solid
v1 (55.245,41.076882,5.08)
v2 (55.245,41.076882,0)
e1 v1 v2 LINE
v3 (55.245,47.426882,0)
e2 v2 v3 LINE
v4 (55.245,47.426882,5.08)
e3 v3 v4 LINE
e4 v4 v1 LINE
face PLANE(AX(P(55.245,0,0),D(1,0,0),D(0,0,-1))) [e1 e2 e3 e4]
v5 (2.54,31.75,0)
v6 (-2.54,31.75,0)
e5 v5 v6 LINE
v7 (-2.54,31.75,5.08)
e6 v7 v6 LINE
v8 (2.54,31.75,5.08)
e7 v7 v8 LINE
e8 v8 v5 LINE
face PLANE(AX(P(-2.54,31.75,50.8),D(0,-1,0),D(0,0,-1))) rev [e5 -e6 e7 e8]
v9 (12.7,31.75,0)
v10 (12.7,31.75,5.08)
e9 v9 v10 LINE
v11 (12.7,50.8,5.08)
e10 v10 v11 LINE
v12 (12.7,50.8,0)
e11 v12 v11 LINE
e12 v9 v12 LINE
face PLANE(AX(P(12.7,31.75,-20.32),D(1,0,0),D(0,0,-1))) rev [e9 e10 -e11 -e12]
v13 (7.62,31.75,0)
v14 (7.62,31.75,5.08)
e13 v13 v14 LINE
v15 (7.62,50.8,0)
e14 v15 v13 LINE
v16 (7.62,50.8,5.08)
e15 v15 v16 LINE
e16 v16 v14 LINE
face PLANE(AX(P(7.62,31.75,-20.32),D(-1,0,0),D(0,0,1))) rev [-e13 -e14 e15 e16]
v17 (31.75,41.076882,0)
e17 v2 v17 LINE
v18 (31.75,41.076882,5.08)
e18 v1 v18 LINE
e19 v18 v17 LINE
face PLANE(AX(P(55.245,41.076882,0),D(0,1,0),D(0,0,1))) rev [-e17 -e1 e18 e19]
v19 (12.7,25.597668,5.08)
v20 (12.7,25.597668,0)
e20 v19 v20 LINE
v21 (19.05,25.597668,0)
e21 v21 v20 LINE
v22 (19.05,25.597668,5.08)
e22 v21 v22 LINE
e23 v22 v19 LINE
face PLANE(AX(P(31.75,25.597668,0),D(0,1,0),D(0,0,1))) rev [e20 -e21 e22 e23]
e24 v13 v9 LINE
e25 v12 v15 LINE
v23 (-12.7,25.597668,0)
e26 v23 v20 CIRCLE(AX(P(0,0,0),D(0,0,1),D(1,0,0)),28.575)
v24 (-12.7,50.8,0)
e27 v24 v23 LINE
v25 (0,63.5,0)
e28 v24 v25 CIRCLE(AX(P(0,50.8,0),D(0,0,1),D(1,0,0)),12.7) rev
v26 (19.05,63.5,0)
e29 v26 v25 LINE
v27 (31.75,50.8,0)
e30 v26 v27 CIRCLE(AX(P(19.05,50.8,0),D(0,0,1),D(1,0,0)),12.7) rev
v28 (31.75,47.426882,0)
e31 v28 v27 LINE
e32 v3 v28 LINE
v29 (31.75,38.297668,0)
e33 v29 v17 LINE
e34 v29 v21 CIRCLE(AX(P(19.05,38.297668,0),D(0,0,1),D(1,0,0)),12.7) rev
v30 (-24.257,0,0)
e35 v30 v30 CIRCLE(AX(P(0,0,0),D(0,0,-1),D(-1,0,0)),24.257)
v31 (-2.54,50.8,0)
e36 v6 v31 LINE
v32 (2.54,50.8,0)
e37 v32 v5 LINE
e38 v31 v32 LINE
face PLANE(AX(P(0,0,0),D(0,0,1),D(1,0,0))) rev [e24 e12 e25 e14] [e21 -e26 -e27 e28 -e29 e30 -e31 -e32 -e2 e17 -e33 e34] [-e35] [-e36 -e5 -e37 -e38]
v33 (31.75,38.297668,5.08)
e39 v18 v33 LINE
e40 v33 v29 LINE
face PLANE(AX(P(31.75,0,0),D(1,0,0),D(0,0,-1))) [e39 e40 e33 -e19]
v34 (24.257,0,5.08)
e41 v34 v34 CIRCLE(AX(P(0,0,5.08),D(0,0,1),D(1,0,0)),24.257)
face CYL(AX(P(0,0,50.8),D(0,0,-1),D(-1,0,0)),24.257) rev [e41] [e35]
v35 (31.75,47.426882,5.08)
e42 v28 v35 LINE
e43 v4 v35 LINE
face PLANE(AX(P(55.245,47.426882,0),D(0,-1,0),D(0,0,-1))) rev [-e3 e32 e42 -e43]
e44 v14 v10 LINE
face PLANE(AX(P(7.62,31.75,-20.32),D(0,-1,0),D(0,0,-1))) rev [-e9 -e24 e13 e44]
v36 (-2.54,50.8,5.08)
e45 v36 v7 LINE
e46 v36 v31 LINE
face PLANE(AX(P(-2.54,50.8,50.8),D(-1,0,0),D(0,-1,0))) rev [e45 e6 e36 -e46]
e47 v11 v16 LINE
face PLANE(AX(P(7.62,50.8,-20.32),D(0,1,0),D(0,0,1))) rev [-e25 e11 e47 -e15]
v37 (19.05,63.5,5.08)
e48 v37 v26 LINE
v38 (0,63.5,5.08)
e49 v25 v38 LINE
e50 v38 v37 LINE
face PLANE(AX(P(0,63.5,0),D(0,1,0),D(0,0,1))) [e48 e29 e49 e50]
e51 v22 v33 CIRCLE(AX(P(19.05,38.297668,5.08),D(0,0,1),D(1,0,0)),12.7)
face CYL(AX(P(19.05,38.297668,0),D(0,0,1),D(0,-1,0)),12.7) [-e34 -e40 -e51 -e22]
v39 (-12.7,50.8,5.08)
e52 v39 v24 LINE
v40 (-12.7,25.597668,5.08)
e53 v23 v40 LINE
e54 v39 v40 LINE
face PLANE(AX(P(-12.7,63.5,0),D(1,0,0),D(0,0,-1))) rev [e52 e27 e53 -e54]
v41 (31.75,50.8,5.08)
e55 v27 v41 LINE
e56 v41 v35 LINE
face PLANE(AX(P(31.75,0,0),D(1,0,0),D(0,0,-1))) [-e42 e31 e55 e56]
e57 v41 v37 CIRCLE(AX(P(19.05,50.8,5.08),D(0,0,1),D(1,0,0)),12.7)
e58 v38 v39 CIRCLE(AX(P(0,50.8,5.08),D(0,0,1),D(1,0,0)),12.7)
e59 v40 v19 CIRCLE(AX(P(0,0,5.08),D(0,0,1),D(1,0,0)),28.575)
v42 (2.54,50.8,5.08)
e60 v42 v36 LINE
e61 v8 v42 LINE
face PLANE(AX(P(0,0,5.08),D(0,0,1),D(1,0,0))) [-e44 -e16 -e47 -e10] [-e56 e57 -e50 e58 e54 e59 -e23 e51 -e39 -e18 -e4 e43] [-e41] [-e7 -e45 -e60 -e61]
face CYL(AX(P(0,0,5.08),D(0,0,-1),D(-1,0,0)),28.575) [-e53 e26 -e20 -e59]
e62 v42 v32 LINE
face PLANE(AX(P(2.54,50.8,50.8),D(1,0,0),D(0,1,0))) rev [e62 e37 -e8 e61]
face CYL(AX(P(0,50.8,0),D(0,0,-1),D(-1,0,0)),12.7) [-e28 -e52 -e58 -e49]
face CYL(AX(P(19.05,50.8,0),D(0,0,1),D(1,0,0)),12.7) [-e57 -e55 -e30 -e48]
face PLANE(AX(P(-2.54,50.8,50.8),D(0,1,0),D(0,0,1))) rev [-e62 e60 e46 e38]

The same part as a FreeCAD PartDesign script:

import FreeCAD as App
import Part
import Sketcher

V = App.Vector
Q = App.Units.Quantity


def edges_at(feature, points):
    """Names of the edges that pass closest to the given points."""
    edges = feature.Shape.Edges
    near = lambda p: min(range(len(edges)), key=lambda i: edges[i].distToShape(Part.Vertex(*p))[0])
    return sorted({f"Edge{near(p) + 1}" for p in points})


def add_polygon(sketch, points):
    """Adds a closed chain of lines whose ends are joined by coincident constraints."""
    first, n = sketch.GeometryCount, len(points)
    for a, b in zip(points, points[1:] + points[:1]):
        sketch.addGeometry(Part.LineSegment(App.Vector(*a, 0), App.Vector(*b, 0)), False)
    for i in range(n):
        sketch.addConstraint(Sketcher.Constraint("Coincident", first + i, 2, first + (i + 1) % n, 1))

doc = App.newDocument("Part")
body = doc.addObject("PartDesign::Body", "Body")

# Sketch on XY plane
sketch1 = body.newObject("Sketcher::SketchObject", "Sketch")
sketch1.AttachmentSupport = (doc.getObject("XY_Plane"), [""])
sketch1.MapMode = "FlatFace"
sketch1.addGeometry(Part.Circle(V(0, 0, 0), V(0, 0, 1), 29), False)
sketch1.addConstraint([
    Sketcher.Constraint("Coincident", 0, 3, -1, 1),
    Sketcher.Constraint("Diameter", 0, Q("2.25 in")),
])
pad1 = body.newObject("PartDesign::Pad", "Pad")
pad1.Profile = sketch1
pad1.Length = Q("0.2 in")

# Sketch on XZ plane
sketch2 = body.newObject("Sketcher::SketchObject", "Sketch001")
sketch2.AttachmentSupport = (doc.getObject("XZ_Plane"), [""])
sketch2.MapMode = "FlatFace"
add_polygon(sketch2, [(-13, 0), (-13, 5), (13, 5), (13, 0)])  # lines 0-3
sketch2.addConstraint([
    Sketcher.Constraint("Vertical", 0),
    Sketcher.Constraint("Horizontal", 1),
    Sketcher.Constraint("Vertical", 2),
    Sketcher.Constraint("Horizontal", 3),
    Sketcher.Constraint("Symmetric", 2, 2, 3, 2, -1, 1),
    Sketcher.Constraint("DistanceX", 1, 1, 1, 2, Q("1 in")),
    Sketcher.Constraint("DistanceY", 0, 1, 0, 2, Q("0.2 in")),
])
pad2 = body.newObject("PartDesign::Pad", "Pad001")
pad2.Profile = sketch2
pad2.Length = Q("2.5 in")
pad2.Reversed = True

# Sketch on XY plane
sketch3 = body.newObject("Sketcher::SketchObject", "Sketch002")
sketch3.AttachmentSupport = (doc.getObject("XY_Plane"), [""])
sketch3.MapMode = "FlatFace"
sketch3.addGeometry(Part.Circle(V(0, 0, 0), V(0, 0, 1), 24), False)
sketch3.addConstraint([
    Sketcher.Constraint("Coincident", 0, 3, -1, 1),
    Sketcher.Constraint("Diameter", 0, Q("1.91 in")),
])
pocket1 = body.newObject("PartDesign::Pocket", "Pocket")
pocket1.Profile = sketch3
pocket1.Length = Q("2 in")
pocket1.Reversed = True

# Sketch on XY plane
sketch4 = body.newObject("Sketcher::SketchObject", "Sketch003")
sketch4.AttachmentSupport = (doc.getObject("XY_Plane"), [""])
sketch4.MapMode = "FlatFace"
add_polygon(sketch4, [(3, 51), (3, 32), (-3, 32), (-3, 51)])  # lines 0-3
sketch4.addConstraint([
    Sketcher.Constraint("Vertical", 0),
    Sketcher.Constraint("Horizontal", 1),
    Sketcher.Constraint("Vertical", 2),
    Sketcher.Constraint("Horizontal", 3),
    Sketcher.Constraint("DistanceX", 1, 2, 1, 1, Q("0.2 in")),
    Sketcher.Constraint("DistanceY", -1, 1, 2, 2, Q("2 in")),
    Sketcher.Constraint("DistanceY", 0, 2, 0, 1, Q("0.75 in")),
    Sketcher.Constraint("DistanceX", -1, 1, 0, 2, Q("0.1 in")),
])
pocket2 = body.newObject("PartDesign::Pocket", "Pocket001")
pocket2.Profile = sketch4
pocket2.Length = Q("2 in")
pocket2.Reversed = True

# Sketch on YZ plane
sketch5 = body.newObject("Sketcher::SketchObject", "Sketch004")
sketch5.AttachmentSupport = (doc.getObject("YZ_Plane"), [""])
sketch5.MapMode = "FlatFace"
sketch5.AttachmentOffset = App.Placement(V(0, 0, 0.5 * 25.4), App.Rotation())
add_polygon(sketch5, [(64, 5), (26, 5), (26, 0), (64, 0)])  # lines 0-3
sketch5.addConstraint([
    Sketcher.Constraint("Horizontal", 0),
    Sketcher.Constraint("Vertical", 1),
    Sketcher.Constraint("Horizontal", 2),
    Sketcher.Constraint("Vertical", 3),
    Sketcher.Constraint("PointOnObject", 1, 2, -1),
    Sketcher.Constraint("DistanceY", 1, 2, 1, 1, Q("0.2 in")),
    Sketcher.Constraint("DistanceX", -1, 1, 2, 2, Q("2.5 in")),
    Sketcher.Constraint("DistanceX", 0, 2, 0, 1, Q("37.902332 mm")),
])
pad3 = body.newObject("PartDesign::Pad", "Pad002")
pad3.Profile = sketch5
pad3.Length = Q("0.75 in")

# Sketch on XY plane
sketch6 = body.newObject("Sketcher::SketchObject", "Sketch005")
sketch6.AttachmentSupport = (doc.getObject("XY_Plane"), [""])
sketch6.MapMode = "FlatFace"
sketch6.AttachmentOffset = App.Placement(V(0, 0, 0.2 * 25.4), App.Rotation())
add_polygon(sketch6, [(8, 51), (8, 32), (13, 32), (13, 51)])  # lines 0-3
sketch6.addConstraint([
    Sketcher.Constraint("Vertical", 0),
    Sketcher.Constraint("Horizontal", 1),
    Sketcher.Constraint("Vertical", 2),
    Sketcher.Constraint("Horizontal", 3),
    Sketcher.Constraint("DistanceX", 1, 1, 1, 2, Q("0.2 in")),
    Sketcher.Constraint("DistanceY", -1, 1, 2, 2, Q("2 in")),
    Sketcher.Constraint("DistanceY", 0, 2, 0, 1, Q("0.75 in")),
    Sketcher.Constraint("DistanceX", -1, 1, 0, 2, Q("0.3 in")),
])
pocket3 = body.newObject("PartDesign::Pocket", "Pocket002")
pocket3.Profile = sketch6
pocket3.Length = Q("1 in")
doc.recompute()

fillet = body.newObject("PartDesign::Fillet", "Fillet")
fillet.Base = (pocket3, edges_at(pocket3, [(-12.7, 63.5, 2.54), (31.75, 63.5, 2.54), (31.75, 25.598, 2.54)]))
fillet.Radius = Q("0.5 in")

# Sketch on YZ plane
sketch7 = body.newObject("Sketcher::SketchObject", "Sketch006")
sketch7.AttachmentSupport = (doc.getObject("YZ_Plane"), [""])
sketch7.MapMode = "FlatFace"
sketch7.AttachmentOffset = App.Placement(V(0, 0, 1.25 * 25.4), App.Rotation())
add_polygon(sketch7, [(47, 5), (41, 5), (41, 0), (47, 0)])  # lines 0-3
sketch7.addConstraint([
    Sketcher.Constraint("Horizontal", 0),
    Sketcher.Constraint("Vertical", 1),
    Sketcher.Constraint("Horizontal", 2),
    Sketcher.Constraint("Vertical", 3),
    Sketcher.Constraint("PointOnObject", 1, 2, -1),
    Sketcher.Constraint("DistanceY", 1, 2, 1, 1, Q("0.2 in")),
    Sketcher.Constraint("DistanceX", 0, 2, 0, 1, Q("0.25 in")),
    Sketcher.Constraint("DistanceX", -1, 1, 0, 2, Q("1.6172001 in")),
])
pad4 = body.newObject("PartDesign::Pad", "Pad003")
pad4.Profile = sketch7
pad4.Length = Q("0.925 in")

doc.recompute()
